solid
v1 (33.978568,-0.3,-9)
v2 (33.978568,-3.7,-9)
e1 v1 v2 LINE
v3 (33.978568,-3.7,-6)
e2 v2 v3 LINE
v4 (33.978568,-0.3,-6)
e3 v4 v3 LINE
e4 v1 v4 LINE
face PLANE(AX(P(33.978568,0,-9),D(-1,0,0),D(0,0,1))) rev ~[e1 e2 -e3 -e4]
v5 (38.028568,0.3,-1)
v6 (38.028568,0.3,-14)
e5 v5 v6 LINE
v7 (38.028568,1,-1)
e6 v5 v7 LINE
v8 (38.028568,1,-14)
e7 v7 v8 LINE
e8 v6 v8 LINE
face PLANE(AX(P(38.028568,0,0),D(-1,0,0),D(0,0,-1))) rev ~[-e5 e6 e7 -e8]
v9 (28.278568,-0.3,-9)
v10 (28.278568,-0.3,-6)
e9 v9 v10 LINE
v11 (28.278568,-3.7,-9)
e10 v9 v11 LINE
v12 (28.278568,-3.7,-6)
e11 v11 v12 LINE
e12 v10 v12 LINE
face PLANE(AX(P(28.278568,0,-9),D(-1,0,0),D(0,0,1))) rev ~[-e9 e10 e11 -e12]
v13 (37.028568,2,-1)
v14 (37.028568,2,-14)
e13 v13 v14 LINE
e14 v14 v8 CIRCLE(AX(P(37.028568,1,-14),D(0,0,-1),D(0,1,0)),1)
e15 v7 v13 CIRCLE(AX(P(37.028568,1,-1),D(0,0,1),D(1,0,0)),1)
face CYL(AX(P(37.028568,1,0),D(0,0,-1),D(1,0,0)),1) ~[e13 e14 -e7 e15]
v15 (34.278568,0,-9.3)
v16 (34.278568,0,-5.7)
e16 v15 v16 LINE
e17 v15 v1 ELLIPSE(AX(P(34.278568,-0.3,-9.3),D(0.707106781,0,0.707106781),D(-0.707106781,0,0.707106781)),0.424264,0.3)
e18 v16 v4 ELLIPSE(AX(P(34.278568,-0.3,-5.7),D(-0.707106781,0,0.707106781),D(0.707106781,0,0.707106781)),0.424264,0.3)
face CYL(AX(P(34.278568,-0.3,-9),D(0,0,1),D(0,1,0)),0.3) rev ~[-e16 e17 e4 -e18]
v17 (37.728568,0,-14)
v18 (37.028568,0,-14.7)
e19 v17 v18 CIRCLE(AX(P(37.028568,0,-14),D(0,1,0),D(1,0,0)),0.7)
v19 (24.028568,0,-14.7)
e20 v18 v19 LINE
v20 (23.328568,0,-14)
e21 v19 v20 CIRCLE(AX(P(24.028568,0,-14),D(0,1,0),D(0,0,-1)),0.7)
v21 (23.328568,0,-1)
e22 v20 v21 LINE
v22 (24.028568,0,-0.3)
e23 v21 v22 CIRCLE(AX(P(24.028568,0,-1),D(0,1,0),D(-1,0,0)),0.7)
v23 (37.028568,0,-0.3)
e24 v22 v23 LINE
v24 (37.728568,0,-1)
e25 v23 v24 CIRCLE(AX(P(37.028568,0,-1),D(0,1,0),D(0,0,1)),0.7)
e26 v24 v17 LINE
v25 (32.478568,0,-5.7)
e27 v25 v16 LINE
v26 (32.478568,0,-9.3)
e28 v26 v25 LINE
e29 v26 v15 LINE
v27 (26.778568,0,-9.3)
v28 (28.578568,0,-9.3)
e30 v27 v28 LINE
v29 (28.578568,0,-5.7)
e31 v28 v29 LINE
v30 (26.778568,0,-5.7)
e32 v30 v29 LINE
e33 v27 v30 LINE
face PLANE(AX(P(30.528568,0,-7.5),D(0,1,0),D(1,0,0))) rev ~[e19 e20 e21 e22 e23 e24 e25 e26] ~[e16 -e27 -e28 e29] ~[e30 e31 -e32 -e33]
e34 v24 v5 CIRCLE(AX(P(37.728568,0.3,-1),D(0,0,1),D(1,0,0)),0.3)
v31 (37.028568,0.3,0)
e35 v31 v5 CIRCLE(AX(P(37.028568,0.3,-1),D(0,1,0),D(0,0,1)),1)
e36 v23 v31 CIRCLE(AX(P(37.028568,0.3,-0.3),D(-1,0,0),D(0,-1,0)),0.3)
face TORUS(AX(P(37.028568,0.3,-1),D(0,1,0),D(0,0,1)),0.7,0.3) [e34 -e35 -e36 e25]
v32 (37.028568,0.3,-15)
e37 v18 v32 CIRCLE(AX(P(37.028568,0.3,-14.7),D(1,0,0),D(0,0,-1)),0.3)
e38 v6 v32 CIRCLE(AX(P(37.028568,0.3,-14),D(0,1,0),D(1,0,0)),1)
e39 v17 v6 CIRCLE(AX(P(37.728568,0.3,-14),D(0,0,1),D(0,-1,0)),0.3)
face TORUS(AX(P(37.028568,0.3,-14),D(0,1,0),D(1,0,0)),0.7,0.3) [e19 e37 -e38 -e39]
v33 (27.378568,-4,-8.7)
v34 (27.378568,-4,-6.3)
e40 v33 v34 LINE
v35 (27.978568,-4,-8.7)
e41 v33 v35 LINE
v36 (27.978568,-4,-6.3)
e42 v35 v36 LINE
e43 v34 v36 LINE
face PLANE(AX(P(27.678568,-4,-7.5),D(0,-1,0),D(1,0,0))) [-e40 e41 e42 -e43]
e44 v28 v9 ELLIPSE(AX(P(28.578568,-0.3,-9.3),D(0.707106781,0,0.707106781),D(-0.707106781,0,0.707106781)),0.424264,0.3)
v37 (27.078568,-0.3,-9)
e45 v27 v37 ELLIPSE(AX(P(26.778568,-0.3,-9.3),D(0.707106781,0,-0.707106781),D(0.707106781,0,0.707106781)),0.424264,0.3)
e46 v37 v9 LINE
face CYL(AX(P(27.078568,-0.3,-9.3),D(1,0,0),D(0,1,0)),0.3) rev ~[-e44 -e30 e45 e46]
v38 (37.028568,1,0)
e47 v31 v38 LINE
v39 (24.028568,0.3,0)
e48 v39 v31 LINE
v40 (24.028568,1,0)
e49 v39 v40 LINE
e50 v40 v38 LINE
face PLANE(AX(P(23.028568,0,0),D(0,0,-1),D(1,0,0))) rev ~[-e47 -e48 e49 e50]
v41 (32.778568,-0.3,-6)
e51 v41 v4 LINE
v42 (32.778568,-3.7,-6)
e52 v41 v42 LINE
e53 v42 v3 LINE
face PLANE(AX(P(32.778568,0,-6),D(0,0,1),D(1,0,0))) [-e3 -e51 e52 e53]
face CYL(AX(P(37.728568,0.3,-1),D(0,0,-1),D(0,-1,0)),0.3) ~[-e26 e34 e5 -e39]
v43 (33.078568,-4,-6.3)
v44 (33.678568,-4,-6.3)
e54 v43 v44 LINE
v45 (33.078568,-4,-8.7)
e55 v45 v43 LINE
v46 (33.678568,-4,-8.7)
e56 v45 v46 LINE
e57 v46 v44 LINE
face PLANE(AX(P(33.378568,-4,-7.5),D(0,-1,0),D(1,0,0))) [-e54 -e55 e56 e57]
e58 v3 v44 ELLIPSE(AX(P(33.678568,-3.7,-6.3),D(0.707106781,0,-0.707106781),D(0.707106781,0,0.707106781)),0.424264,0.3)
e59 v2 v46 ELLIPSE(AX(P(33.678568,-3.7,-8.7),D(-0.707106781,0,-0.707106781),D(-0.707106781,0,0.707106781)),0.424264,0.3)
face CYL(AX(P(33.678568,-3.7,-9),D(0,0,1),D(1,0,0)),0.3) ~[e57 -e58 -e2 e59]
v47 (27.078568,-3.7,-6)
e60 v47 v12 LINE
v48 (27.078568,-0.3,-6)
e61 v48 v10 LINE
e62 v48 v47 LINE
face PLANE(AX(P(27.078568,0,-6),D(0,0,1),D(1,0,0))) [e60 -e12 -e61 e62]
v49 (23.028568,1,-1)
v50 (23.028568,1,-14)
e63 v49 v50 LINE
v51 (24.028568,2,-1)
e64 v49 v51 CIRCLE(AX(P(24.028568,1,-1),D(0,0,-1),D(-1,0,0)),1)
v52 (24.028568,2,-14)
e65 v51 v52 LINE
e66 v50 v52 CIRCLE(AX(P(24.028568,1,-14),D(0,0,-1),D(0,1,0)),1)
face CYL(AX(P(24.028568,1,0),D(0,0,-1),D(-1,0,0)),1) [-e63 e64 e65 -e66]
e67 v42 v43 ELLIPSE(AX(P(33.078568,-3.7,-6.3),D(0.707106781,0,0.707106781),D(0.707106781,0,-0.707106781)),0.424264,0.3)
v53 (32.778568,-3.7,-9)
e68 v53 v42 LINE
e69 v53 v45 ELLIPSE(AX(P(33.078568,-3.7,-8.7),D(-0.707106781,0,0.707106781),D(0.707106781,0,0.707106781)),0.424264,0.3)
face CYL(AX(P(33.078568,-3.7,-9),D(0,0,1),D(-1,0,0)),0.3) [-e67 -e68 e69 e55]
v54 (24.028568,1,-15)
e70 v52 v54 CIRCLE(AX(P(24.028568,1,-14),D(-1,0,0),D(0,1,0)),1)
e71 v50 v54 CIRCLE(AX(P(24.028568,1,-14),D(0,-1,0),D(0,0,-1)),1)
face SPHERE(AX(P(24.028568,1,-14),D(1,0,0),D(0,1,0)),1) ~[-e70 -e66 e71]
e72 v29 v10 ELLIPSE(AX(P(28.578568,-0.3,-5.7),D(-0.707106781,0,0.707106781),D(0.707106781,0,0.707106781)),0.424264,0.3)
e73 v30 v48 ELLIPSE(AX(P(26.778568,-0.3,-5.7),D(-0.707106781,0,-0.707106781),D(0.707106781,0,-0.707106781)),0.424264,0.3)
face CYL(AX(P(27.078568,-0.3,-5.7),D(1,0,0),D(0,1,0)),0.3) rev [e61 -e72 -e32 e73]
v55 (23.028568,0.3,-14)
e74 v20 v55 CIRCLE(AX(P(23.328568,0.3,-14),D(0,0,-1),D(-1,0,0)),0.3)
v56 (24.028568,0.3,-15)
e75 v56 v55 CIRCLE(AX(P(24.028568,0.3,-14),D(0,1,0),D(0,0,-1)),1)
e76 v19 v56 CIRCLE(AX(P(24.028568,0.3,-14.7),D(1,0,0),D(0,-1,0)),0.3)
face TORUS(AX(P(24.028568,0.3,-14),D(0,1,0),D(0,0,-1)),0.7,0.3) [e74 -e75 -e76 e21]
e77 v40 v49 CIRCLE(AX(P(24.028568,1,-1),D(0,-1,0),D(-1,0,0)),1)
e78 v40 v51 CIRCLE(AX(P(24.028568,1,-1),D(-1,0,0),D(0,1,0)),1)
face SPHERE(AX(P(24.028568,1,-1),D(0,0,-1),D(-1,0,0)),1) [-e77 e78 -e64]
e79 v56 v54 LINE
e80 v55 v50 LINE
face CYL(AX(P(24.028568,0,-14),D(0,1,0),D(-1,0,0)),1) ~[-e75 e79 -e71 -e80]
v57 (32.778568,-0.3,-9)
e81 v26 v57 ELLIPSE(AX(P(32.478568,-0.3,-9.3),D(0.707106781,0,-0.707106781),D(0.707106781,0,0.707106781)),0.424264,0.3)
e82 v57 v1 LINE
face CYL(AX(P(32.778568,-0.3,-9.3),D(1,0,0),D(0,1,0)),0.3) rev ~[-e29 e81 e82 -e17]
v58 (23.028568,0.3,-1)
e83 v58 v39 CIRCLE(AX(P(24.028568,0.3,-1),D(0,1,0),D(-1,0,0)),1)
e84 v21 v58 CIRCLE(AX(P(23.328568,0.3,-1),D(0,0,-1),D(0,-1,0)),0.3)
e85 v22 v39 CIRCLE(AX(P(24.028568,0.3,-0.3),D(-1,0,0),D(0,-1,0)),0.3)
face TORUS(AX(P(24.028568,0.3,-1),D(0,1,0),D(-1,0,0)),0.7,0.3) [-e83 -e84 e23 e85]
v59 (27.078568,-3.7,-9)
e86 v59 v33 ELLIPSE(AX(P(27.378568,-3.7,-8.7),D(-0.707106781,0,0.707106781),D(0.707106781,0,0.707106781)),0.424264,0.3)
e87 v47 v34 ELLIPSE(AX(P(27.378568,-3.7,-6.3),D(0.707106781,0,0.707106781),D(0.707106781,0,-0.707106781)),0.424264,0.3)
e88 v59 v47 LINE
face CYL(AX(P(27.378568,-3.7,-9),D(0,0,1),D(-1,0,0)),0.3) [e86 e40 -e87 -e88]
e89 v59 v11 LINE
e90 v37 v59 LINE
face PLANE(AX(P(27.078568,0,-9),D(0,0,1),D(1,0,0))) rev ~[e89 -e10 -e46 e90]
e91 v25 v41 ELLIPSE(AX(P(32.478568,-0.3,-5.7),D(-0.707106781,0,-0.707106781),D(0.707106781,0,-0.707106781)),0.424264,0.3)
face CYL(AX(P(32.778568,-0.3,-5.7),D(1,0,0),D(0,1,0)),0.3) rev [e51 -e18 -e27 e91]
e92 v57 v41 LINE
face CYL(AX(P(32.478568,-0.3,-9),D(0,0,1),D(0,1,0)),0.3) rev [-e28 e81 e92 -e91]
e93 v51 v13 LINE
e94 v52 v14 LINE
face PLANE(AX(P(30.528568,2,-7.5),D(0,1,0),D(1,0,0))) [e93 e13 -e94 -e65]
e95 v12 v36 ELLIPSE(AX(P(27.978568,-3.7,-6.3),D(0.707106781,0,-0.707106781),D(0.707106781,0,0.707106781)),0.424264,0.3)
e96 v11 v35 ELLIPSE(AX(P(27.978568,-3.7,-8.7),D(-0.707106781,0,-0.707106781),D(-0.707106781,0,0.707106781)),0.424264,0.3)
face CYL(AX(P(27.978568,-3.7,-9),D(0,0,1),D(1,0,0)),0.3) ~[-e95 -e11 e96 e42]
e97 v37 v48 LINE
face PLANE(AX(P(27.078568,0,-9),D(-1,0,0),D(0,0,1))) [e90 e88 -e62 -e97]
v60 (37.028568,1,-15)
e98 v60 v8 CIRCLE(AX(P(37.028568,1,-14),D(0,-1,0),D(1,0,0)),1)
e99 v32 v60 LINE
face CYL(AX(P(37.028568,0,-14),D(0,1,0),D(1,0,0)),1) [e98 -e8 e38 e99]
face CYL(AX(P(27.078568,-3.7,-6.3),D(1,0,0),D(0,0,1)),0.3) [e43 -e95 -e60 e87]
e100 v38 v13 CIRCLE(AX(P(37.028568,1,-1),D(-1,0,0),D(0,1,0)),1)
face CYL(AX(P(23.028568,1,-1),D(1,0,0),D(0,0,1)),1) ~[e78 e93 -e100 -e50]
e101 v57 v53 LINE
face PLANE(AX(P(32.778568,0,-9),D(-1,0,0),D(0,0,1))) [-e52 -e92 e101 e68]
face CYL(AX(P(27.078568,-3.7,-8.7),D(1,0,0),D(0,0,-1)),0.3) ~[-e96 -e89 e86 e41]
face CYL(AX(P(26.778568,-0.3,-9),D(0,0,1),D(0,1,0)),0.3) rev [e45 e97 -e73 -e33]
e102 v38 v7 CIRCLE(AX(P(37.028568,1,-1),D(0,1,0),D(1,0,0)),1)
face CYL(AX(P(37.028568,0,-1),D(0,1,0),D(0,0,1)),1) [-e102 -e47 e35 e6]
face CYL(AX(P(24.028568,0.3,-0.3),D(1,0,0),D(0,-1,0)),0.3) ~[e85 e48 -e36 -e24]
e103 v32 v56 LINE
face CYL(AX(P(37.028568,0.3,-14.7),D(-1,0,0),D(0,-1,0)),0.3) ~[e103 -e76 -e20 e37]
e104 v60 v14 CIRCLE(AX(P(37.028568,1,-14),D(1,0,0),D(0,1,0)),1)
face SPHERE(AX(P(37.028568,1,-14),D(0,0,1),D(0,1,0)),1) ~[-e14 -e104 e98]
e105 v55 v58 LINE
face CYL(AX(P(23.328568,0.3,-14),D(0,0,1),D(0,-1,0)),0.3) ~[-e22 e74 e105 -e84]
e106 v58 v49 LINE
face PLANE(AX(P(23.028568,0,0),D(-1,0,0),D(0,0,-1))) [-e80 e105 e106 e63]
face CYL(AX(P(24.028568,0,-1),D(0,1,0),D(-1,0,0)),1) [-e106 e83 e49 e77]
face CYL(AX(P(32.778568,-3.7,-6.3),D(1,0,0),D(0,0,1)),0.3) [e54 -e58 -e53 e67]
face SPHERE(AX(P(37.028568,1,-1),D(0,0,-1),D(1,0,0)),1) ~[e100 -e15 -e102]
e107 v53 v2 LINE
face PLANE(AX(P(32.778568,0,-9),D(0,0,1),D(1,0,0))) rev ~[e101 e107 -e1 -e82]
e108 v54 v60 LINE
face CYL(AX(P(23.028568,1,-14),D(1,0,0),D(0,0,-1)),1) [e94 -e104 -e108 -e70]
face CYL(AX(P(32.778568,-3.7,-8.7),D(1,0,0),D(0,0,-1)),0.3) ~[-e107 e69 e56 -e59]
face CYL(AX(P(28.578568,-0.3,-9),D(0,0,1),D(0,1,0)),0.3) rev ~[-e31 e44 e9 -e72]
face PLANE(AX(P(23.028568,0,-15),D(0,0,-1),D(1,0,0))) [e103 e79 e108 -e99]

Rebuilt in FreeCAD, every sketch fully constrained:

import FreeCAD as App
import Part
import Sketcher

V = App.Vector
Q = App.Units.Quantity


def edges_at(feature, points):
    """Names of the edges that pass closest to the given points."""
    edges = feature.Shape.Edges
    near = lambda p: min(range(len(edges)), key=lambda i: edges[i].distToShape(Part.Vertex(*p))[0])
    return sorted({f"Edge{near(p) + 1}" for p in points})


def add_polygon(sketch, points):
    """Adds a closed chain of lines whose ends are joined by coincident constraints."""
    first, n = sketch.GeometryCount, len(points)
    for a, b in zip(points, points[1:] + points[:1]):
        sketch.addGeometry(Part.LineSegment(App.Vector(*a, 0), App.Vector(*b, 0)), False)
    for i in range(n):
        sketch.addConstraint(Sketcher.Constraint("Coincident", first + i, 2, first + (i + 1) % n, 1))

doc = App.newDocument("Part")
body = doc.addObject("PartDesign::Body", "Body")

sketch1 = body.newObject("Sketcher::SketchObject", "Sketch")
sketch1.AttachmentSupport = (doc.getObject("XZ_Plane"), [""])
sketch1.MapMode = "FlatFace"
add_polygon(sketch1, [(23, -15), (23, 0), (38, 0), (38, -15)])
sketch1.addConstraint([
    Sketcher.Constraint("Vertical", 0),
    Sketcher.Constraint("Horizontal", 1),
    Sketcher.Constraint("Vertical", 2),
    Sketcher.Constraint("Horizontal", 3),
    Sketcher.Constraint("PointOnObject", 0, 2, -1),
    Sketcher.Constraint("Equal", 3, 0),
    Sketcher.Constraint("DistanceX", 1, 1, 1, 2, Q("15 mm")),
    Sketcher.Constraint("DistanceX", -1, 1, 0, 2, Q("23.028568 mm")),
])
pad1 = body.newObject("PartDesign::Pad", "Pad")
pad1.Profile = sketch1
pad1.Length = 2
pad1.Reversed = True
doc.recompute()

fillet = body.newObject("PartDesign::Fillet", "Fillet")
fillet.Base = (pad1, edges_at(pad1, [
    (38.029, 2, -7.5),
    (30.529, 2, -15),
    (23.029, 2, -7.5),
    (23.029, 1, -15),
    (38.029, 1, -15),
    (38.029, 1, 0),
    (23.029, 1, 0),
    (30.529, 2, 0),
]))
fillet.Radius = 1

sketch2 = body.newObject("Sketcher::SketchObject", "Sketch001")
sketch2.AttachmentSupport = (doc.getObject("XZ_Plane"), [""])
sketch2.MapMode = "FlatFace"
add_polygon(sketch2, [(32.8, -6), (32.8, -9), (34, -9), (34, -6)])
add_polygon(sketch2, [(27.1, -6), (27.1, -9), (28.3, -9), (28.3, -6)])
sketch2.addConstraint([
    Sketcher.Constraint("Vertical", 0),
    Sketcher.Constraint("Horizontal", 1),
    Sketcher.Constraint("Vertical", 2),
    Sketcher.Constraint("Horizontal", 3),
    Sketcher.Constraint("Vertical", 4),
    Sketcher.Constraint("Horizontal", 5),
    Sketcher.Constraint("Vertical", 6),
    Sketcher.Constraint("Horizontal", 7),
    Sketcher.Constraint("Horizontal", 1, 2, 4, 2),
    Sketcher.Constraint("Horizontal", 3, 2, 6, 2),
    Sketcher.Constraint("Equal", 3, 5),
    Sketcher.Constraint("DistanceY", 0, 2, 0, 1, Q("3 mm")),
    Sketcher.Constraint("DistanceX", 1, 1, 1, 2, Q("1.2 mm")),
    Sketcher.Constraint("DistanceY", 0, 2, -1, 1, Q("9 mm")),
    Sketcher.Constraint("DistanceX", 4, 2, 0, 2, Q("5.7 mm")),
    Sketcher.Constraint("DistanceX", -1, 1, 0, 2, Q("32.778568 mm")),
])
pad2 = body.newObject("PartDesign::Pad", "Pad001")
pad2.Profile = sketch2
pad2.Length = 4
doc.recompute()

fillet2 = body.newObject("PartDesign::Fillet", "Fillet001")
fillet2.Base = (pad2, edges_at(pad2, [
    (30.529, 0, 0),
    (38.029, 0, -7.5),
    (23.029, 0, -7.5),
    (30.529, 0, -15),
    (23.321, 0, -0.293),
    (37.736, 0, -0.293),
    (23.321, 0, -14.707),
    (37.736, 0, -14.707),
    (28.279, 0, -7.5),
    (27.679, 0, -6),
    (27.079, 0, -7.5),
    (27.679, 0, -9),
    (28.279, -4, -7.5),
    (27.679, -4, -6),
    (27.079, -4, -7.5),
    (27.679, -4, -9),
    (33.979, 0, -7.5),
    (33.379, 0, -6),
    (32.779, 0, -7.5),
    (33.379, 0, -9),
    (33.979, -4, -7.5),
    (33.379, -4, -6),
    (32.779, -4, -7.5),
    (33.379, -4, -9),
]))
fillet2.Radius = 0.3

doc.recompute()
